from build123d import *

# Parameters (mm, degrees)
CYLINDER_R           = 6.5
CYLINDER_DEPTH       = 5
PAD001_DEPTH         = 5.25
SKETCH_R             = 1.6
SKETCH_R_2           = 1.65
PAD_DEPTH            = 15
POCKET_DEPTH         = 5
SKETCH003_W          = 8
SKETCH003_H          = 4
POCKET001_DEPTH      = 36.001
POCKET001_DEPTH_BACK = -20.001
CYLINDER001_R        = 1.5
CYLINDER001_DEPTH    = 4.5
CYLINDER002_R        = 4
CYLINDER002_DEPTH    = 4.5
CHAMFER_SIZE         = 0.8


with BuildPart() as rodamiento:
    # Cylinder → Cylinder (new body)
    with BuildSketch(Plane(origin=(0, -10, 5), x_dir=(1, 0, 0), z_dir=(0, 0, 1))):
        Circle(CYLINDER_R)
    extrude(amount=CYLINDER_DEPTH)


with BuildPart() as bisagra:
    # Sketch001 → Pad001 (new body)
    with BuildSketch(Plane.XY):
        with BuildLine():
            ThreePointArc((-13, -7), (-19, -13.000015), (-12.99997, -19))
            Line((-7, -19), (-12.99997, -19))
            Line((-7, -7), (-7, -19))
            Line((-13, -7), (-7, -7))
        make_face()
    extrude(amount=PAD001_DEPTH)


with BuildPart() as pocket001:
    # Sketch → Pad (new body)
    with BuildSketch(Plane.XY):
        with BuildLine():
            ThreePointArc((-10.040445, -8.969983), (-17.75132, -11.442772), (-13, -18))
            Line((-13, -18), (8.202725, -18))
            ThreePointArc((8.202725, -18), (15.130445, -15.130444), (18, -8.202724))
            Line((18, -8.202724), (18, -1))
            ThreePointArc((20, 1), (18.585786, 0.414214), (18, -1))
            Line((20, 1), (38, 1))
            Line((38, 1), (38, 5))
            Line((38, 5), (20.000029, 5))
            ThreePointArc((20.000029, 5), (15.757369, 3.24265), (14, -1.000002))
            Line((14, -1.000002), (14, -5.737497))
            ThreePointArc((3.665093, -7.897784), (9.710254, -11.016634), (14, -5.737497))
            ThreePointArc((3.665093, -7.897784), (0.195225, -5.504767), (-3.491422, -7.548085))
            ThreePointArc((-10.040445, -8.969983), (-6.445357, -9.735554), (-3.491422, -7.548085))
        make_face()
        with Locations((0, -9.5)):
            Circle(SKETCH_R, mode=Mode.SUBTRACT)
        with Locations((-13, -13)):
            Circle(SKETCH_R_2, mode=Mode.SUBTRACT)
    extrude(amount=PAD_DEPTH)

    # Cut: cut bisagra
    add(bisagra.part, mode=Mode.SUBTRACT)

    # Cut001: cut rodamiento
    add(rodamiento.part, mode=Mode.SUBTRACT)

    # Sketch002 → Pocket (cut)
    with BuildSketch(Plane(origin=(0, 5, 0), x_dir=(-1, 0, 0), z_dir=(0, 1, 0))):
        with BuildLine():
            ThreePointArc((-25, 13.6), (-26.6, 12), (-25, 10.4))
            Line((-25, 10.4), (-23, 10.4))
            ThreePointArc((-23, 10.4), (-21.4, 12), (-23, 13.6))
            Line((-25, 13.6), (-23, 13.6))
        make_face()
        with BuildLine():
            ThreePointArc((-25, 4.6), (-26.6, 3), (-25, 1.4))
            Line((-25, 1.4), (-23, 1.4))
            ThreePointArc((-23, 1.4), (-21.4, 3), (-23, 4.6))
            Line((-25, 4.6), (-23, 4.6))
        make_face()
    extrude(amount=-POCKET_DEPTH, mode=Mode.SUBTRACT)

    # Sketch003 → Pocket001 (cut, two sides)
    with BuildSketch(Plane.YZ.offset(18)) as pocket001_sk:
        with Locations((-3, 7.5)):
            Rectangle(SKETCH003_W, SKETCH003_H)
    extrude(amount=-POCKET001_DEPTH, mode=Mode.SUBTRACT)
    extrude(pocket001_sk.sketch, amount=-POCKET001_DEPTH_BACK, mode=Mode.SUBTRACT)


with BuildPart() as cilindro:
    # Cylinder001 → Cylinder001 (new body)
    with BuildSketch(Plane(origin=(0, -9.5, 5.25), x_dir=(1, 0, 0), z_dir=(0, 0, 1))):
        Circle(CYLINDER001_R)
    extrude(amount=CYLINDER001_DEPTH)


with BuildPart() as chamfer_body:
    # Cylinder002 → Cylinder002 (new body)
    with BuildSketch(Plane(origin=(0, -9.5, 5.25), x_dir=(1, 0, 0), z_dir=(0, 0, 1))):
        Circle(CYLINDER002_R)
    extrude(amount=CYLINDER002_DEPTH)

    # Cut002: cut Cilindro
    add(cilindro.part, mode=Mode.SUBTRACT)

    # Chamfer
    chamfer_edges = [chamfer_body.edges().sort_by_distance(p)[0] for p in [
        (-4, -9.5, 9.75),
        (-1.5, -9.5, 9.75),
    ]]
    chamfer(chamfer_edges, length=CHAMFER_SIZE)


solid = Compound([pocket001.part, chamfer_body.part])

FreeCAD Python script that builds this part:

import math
import FreeCAD as App
import Part
import Sketcher
Q = App.Units.Quantity


def edges_at(feature, points):
    """Names of the edges that pass closest to the given points."""
    edges = feature.Shape.Edges
    near = lambda p: min(range(len(edges)), key=lambda i: edges[i].distToShape(Part.Vertex(*p))[0])
    return sorted({f"Edge{near(p) + 1}" for p in points})

doc = App.newDocument("Part")
params = doc.addObject("Spreadsheet::Sheet", "Params")
for row, (alias, value) in enumerate([
    ("sketch1_diameter", "13 mm"),
    ("pad1_length", "5 mm"),
    ("sketch2_radius", "6 mm"),
    ("sketch2_width", "6 mm"),
    ("pad2_length", "5.25 mm"),
    ("sketch3_radius", "5 mm"),
    ("sketch3_radius2", "1.999999 mm"),
    ("sketch3_radius3", "6.000001 mm"),
    ("sketch3_radius4", "4 mm"),
    ("sketch3_diameter", "3.3 mm"),
    ("pad3_length", "15 mm"),
    ("sketch4_radius", "1.6 mm"),
    ("sketch4_width", "2 mm"),
    ("pocket1_length", "5 mm"),
    ("sketch5_width", "8 mm"),
    ("sketch5_height", "4 mm"),
    ("sketch6_diameter", "3 mm"),
    ("pad4_length", "4.5 mm"),
    ("sketch7_diameter", "8 mm"),
    ("pad5_length", "4.5 mm"),
    ("chamfer_size", "0.8 mm"),
], start=1):
    params.set(f"A{row}", alias)
    params.set(f"B{row}", "=" + value)
    params.setAlias(f"B{row}", alias)

body = doc.addObject("PartDesign::Body", "Body")

sketch1 = body.newObject("Sketcher::SketchObject", "Sketch")
sketch1.AttachmentSupport = (doc.getObject("XY_Plane"), [""])
sketch1.MapMode = "FlatFace"
sketch1.AttachmentOffset = App.Placement(App.Vector(0, 0, 5), App.Rotation())
sketch1.addGeometry(Part.Circle(App.Vector(0, -10, 0), App.Vector(0, 0, 1), 6), False)
sketch1.addConstraint(Sketcher.Constraint("PointOnObject", 0, 3, -2))
sketch1.addConstraint(Sketcher.Constraint("Diameter", 0, Q("13 mm")))
sketch1.addConstraint(Sketcher.Constraint("DistanceY", 0, 3, -1, 1, Q("10 mm")))
sketch1.setExpression("Constraints[1]", "Params.sketch1_diameter")
pad1 = body.newObject("PartDesign::Pad", "Pad")
pad1.Profile = sketch1
pad1.setExpression("Length", "Params.pad1_length")
body2 = doc.addObject("PartDesign::Body", "Body001")

sketch2 = body2.newObject("Sketcher::SketchObject", "Sketch001")
sketch2.AttachmentSupport = (doc.getObject("XY_Plane001"), [""])
sketch2.MapMode = "FlatFace"
sketch2.addGeometry(Part.ArcOfCircle(Part.Circle(App.Vector(-13, -13, 0), App.Vector(0, 0, 1), 6), math.radians(90), math.radians(270.000286)), False)
sketch2.addGeometry(Part.LineSegment(App.Vector(-12.99997, -19, 0), App.Vector(-7, -19, 0)), False)
sketch2.addGeometry(Part.LineSegment(App.Vector(-7, -19, 0), App.Vector(-7, -7, 0)), False)
sketch2.addGeometry(Part.LineSegment(App.Vector(-7, -7, 0), App.Vector(-13, -7, 0)), False)
sketch2.addConstraint(Sketcher.Constraint("Coincident", 0, 2, 1, 1))
sketch2.addConstraint(Sketcher.Constraint("Coincident", 1, 2, 2, 1))
sketch2.addConstraint(Sketcher.Constraint("Coincident", 2, 2, 3, 1))
sketch2.addConstraint(Sketcher.Constraint("Tangent", 3, 2, 0, 1))
sketch2.addConstraint(Sketcher.Constraint("Horizontal", 1))
sketch2.addConstraint(Sketcher.Constraint("Vertical", 2))
sketch2.addConstraint(Sketcher.Constraint("Horizontal", 3))
sketch2.addConstraint(Sketcher.Constraint("Radius", 0, Q("6 mm")))
sketch2.addConstraint(Sketcher.Constraint("DistanceX", 3, 2, 3, 1, Q("6 mm")))
sketch2.addConstraint(Sketcher.Constraint("DistanceX", 0, 3, -1, 1, Q("13 mm")))
sketch2.addConstraint(Sketcher.Constraint("DistanceY", 0, 3, -1, 1, Q("13 mm")))
sketch2.addConstraint(Sketcher.Constraint("DistanceX", 1, 1, 1, 2, Q("5.99997 mm")))
sketch2.setExpression("Constraints[7]", "Params.sketch2_radius")
sketch2.setExpression("Constraints[8]", "Params.sketch2_width")
pad2 = body2.newObject("PartDesign::Pad", "Pad001")
pad2.Profile = sketch2
pad2.setExpression("Length", "Params.pad2_length")
body3 = doc.addObject("PartDesign::Body", "Body002")

sketch3 = body3.newObject("Sketcher::SketchObject", "Sketch002")
sketch3.AttachmentSupport = (doc.getObject("XY_Plane002"), [""])
sketch3.MapMode = "FlatFace"
sketch3.addGeometry(Part.ArcOfCircle(Part.Circle(App.Vector(-13, -13, 0), App.Vector(0, 0, 1), 5), math.radians(54), math.radians(270)), False)
sketch3.addGeometry(Part.LineSegment(App.Vector(-13, -18, 0), App.Vector(8.2, -18, 0)), False)
sketch3.addGeometry(Part.ArcOfCircle(Part.Circle(App.Vector(8.2, -8.2, 0), App.Vector(0, 0, 1), 9.8), math.radians(-90), math.radians(0)), False)
sketch3.addGeometry(Part.LineSegment(App.Vector(18, -8.2, 0), App.Vector(18, -1, 0)), False)
sketch3.addGeometry(Part.ArcOfCircle(Part.Circle(App.Vector(20, -1, 0), App.Vector(0, 0, 1), 2), math.radians(90), math.radians(180)), False)
sketch3.addGeometry(Part.LineSegment(App.Vector(20, 1, 0), App.Vector(38, 1, 0)), False)
sketch3.addGeometry(Part.LineSegment(App.Vector(38, 1, 0), App.Vector(38, 5, 0)), False)
sketch3.addGeometry(Part.LineSegment(App.Vector(38, 5, 0), App.Vector(20, 5, 0)), False)
sketch3.addGeometry(Part.ArcOfCircle(Part.Circle(App.Vector(20, -1, 0), App.Vector(0, 0, 1), 6), math.radians(90), math.radians(180)), False)
sketch3.addGeometry(Part.LineSegment(App.Vector(14, -1, 0), App.Vector(14, -5.7, 0)), False)
sketch3.addGeometry(Part.ArcOfCircle(Part.Circle(App.Vector(8.6, -5.7, 0), App.Vector(0, 0, 1), 5.4), math.radians(-156), math.radians(0)), False)
sketch3.addGeometry(Part.ArcOfCircle(Part.Circle(App.Vector(0, -9.5, 0), App.Vector(0, 0, 1), 4), math.radians(24), math.radians(151)), False)
sketch3.addGeometry(Part.ArcOfCircle(Part.Circle(App.Vector(-7.4, -5.4, 0), App.Vector(0, 0, 1), 4.5), math.radians(-126), math.radians(-29)), False)
sketch3.addGeometry(Part.Circle(App.Vector(-13, -13, 0), App.Vector(0, 0, 1), 1.6), False)
sketch3.addGeometry(Part.Circle(App.Vector(0, -9.5, 0), App.Vector(0, 0, 1), 1.6), False)
sketch3.addConstraint(Sketcher.Constraint("Tangent", 0, 2, 1, 1))
sketch3.addConstraint(Sketcher.Constraint("Tangent", 1, 2, 2, 1))
sketch3.addConstraint(Sketcher.Constraint("Tangent", 2, 2, 3, 1))
sketch3.addConstraint(Sketcher.Constraint("Tangent", 3, 2, 4, 2))
sketch3.addConstraint(Sketcher.Constraint("Tangent", 4, 1, 5, 1))
sketch3.addConstraint(Sketcher.Constraint("Coincident", 5, 2, 6, 1))
sketch3.addConstraint(Sketcher.Constraint("Coincident", 6, 2, 7, 1))
sketch3.addConstraint(Sketcher.Constraint("Coincident", 7, 2, 8, 1))
sketch3.addConstraint(Sketcher.Constraint("Tangent", 8, 2, 9, 1))
sketch3.addConstraint(Sketcher.Constraint("Tangent", 9, 2, 10, 2))
sketch3.addConstraint(Sketcher.Constraint("Tangent", 10, 1, 11, 1))
sketch3.addConstraint(Sketcher.Constraint("Tangent", 11, 2, 12, 2))
sketch3.addConstraint(Sketcher.Constraint("Tangent", 12, 1, 0, 1))
sketch3.addConstraint(Sketcher.Constraint("Horizontal", 1))
sketch3.addConstraint(Sketcher.Constraint("Vertical", 3))
sketch3.addConstraint(Sketcher.Constraint("Horizontal", 5))
sketch3.addConstraint(Sketcher.Constraint("Vertical", 6))
sketch3.addConstraint(Sketcher.Constraint("Horizontal", 7))
sketch3.addConstraint(Sketcher.Constraint("Vertical", 9))
sketch3.addConstraint(Sketcher.Constraint("Coincident", 8, 3, 4, 3))
sketch3.addConstraint(Sketcher.Constraint("Coincident", 13, 3, 0, 3))
sketch3.addConstraint(Sketcher.Constraint("Coincident", 14, 3, 11, 3))
sketch3.addConstraint(Sketcher.Constraint("PointOnObject", 11, 3, -2))
sketch3.addConstraint(Sketcher.Constraint("Radius", 0, Q("5 mm")))
sketch3.addConstraint(Sketcher.Constraint("Radius", 4, Q("1.999999 mm")))
sketch3.addConstraint(Sketcher.Constraint("Radius", 8, Q("6.000001 mm")))
sketch3.addConstraint(Sketcher.Constraint("Radius", 11, Q("4 mm")))
sketch3.addConstraint(Sketcher.Constraint("Diameter", 13, Q("3.3 mm")))
sketch3.addConstraint(Sketcher.Constraint("Diameter", 14, Q("3.2 mm")))
sketch3.addConstraint(Sketcher.Constraint("DistanceX", 5, 1, 5, 2, Q("18 mm")))
sketch3.addConstraint(Sketcher.Constraint("DistanceX", 0, 3, -1, 1, Q("13 mm")))
sketch3.addConstraint(Sketcher.Constraint("DistanceY", 0, 3, -1, 1, Q("13 mm")))
sketch3.addConstraint(Sketcher.Constraint("DistanceX", -1, 1, 4, 3, Q("19.999999 mm")))
sketch3.addConstraint(Sketcher.Constraint("DistanceY", 4, 3, -1, 1, Q("0.999999 mm")))
sketch3.addConstraint(Sketcher.Constraint("DistanceY", 11, 3, -1, 1, Q("9.5 mm")))
sketch3.addConstraint(Sketcher.Constraint("Radius", 2, Q("9.797275 mm")))
sketch3.addConstraint(Sketcher.Constraint("Radius", 10, Q("5.393234 mm")))
sketch3.addConstraint(Sketcher.Constraint("Radius", 12, Q("4.471034 mm")))
sketch3.addConstraint(Sketcher.Constraint("DistanceX", 7, 2, 7, 1, Q("17.999971 mm")))
sketch3.setExpression("Constraints[23]", "Params.sketch3_radius")
sketch3.setExpression("Constraints[24]", "Params.sketch3_radius2")
sketch3.setExpression("Constraints[25]", "Params.sketch3_radius3")
sketch3.setExpression("Constraints[26]", "Params.sketch3_radius4")
sketch3.setExpression("Constraints[27]", "Params.sketch3_diameter")
pad3 = body3.newObject("PartDesign::Pad", "Pad002")
pad3.Profile = sketch3
pad3.setExpression("Length", "Params.pad3_length")
doc.recompute()

boolean = body3.newObject("PartDesign::Boolean", "Boolean")
boolean.Type = "Cut"
boolean.addObjects([body2])
doc.recompute()

boolean2 = body3.newObject("PartDesign::Boolean", "Boolean001")
boolean2.Type = "Cut"
boolean2.addObjects([body])

sketch4 = body3.newObject("Sketcher::SketchObject", "Sketch003")
sketch4.AttachmentSupport = (doc.getObject("XZ_Plane002"), [""])
sketch4.MapMode = "FlatFace"
sketch4.AttachmentOffset = App.Placement(App.Vector(0, 0, -5), App.Rotation())
sketch4.addGeometry(Part.ArcOfCircle(Part.Circle(App.Vector(25, 12, 0), App.Vector(0, 0, 1), 1.6), math.radians(-90), math.radians(90)), False)
sketch4.addGeometry(Part.LineSegment(App.Vector(25, 10.4, 0), App.Vector(23, 10.4, 0)), False)
sketch4.addGeometry(Part.ArcOfCircle(Part.Circle(App.Vector(23, 12, 0), App.Vector(0, 0, 1), 1.6), math.radians(90), math.radians(270)), False)
sketch4.addGeometry(Part.LineSegment(App.Vector(23, 13.6, 0), App.Vector(25, 13.6, 0)), False)
sketch4.addGeometry(Part.ArcOfCircle(Part.Circle(App.Vector(25, 3, 0), App.Vector(0, 0, 1), 1.6), math.radians(-90), math.radians(90)), False)
sketch4.addGeometry(Part.LineSegment(App.Vector(25, 1.4, 0), App.Vector(23, 1.4, 0)), False)
sketch4.addGeometry(Part.ArcOfCircle(Part.Circle(App.Vector(23, 3, 0), App.Vector(0, 0, 1), 1.6), math.radians(90), math.radians(270)), False)
sketch4.addGeometry(Part.LineSegment(App.Vector(23, 4.6, 0), App.Vector(25, 4.6, 0)), False)
sketch4.addConstraint(Sketcher.Constraint("Tangent", 0, 1, 1, 1))
sketch4.addConstraint(Sketcher.Constraint("Tangent", 1, 2, 2, 2))
sketch4.addConstraint(Sketcher.Constraint("Tangent", 2, 1, 3, 1))
sketch4.addConstraint(Sketcher.Constraint("Tangent", 3, 2, 0, 2))
sketch4.addConstraint(Sketcher.Constraint("Tangent", 4, 1, 5, 1))
sketch4.addConstraint(Sketcher.Constraint("Tangent", 5, 2, 6, 2))
sketch4.addConstraint(Sketcher.Constraint("Tangent", 6, 1, 7, 1))
sketch4.addConstraint(Sketcher.Constraint("Tangent", 7, 2, 4, 2))
sketch4.addConstraint(Sketcher.Constraint("Horizontal", 1))
sketch4.addConstraint(Sketcher.Constraint("Horizontal", 3))
sketch4.addConstraint(Sketcher.Constraint("Horizontal", 5))
sketch4.addConstraint(Sketcher.Constraint("Horizontal", 7))
sketch4.addConstraint(Sketcher.Constraint("Equal", 2, 4))
sketch4.addConstraint(Sketcher.Constraint("Vertical", 0, 3, 4, 3))
sketch4.addConstraint(Sketcher.Constraint("Vertical", 2, 3, 6, 3))
sketch4.addConstraint(Sketcher.Constraint("Radius", 0, Q("1.6 mm")))
sketch4.addConstraint(Sketcher.Constraint("DistanceX", 1, 2, 1, 1, Q("2 mm")))
sketch4.addConstraint(Sketcher.Constraint("DistanceX", -1, 1, 0, 3, Q("25 mm")))
sketch4.addConstraint(Sketcher.Constraint("DistanceY", -1, 1, 0, 3, Q("12 mm")))
sketch4.addConstraint(Sketcher.Constraint("DistanceY", -1, 1, 4, 3, Q("3 mm")))
sketch4.setExpression("Constraints[15]", "Params.sketch4_radius")
sketch4.setExpression("Constraints[16]", "Params.sketch4_width")
pocket1 = body3.newObject("PartDesign::Pocket", "Pocket")
pocket1.Profile = sketch4
pocket1.setExpression("Length", "Params.pocket1_length")
pocket1.Reversed = True

sketch5 = body3.newObject("Sketcher::SketchObject", "Sketch004")
sketch5.AttachmentSupport = (doc.getObject("YZ_Plane002"), [""])
sketch5.MapMode = "FlatFace"
sketch5.AttachmentOffset = App.Placement(App.Vector(0, 0, 18), App.Rotation())
sketch5.addGeometry(Part.LineSegment(App.Vector(-7, 9.5, 0), App.Vector(-7, 5.5, 0)), False)
sketch5.addGeometry(Part.LineSegment(App.Vector(-7, 5.5, 0), App.Vector(1, 5.5, 0)), False)
sketch5.addGeometry(Part.LineSegment(App.Vector(1, 5.5, 0), App.Vector(1, 9.5, 0)), False)
sketch5.addGeometry(Part.LineSegment(App.Vector(1, 9.5, 0), App.Vector(-7, 9.5, 0)), False)
sketch5.addConstraint(Sketcher.Constraint("Coincident", 0, 2, 1, 1))
sketch5.addConstraint(Sketcher.Constraint("Coincident", 1, 2, 2, 1))
sketch5.addConstraint(Sketcher.Constraint("Coincident", 2, 2, 3, 1))
sketch5.addConstraint(Sketcher.Constraint("Coincident", 3, 2, 0, 1))
sketch5.addConstraint(Sketcher.Constraint("Vertical", 0))
sketch5.addConstraint(Sketcher.Constraint("Horizontal", 1))
sketch5.addConstraint(Sketcher.Constraint("Vertical", 2))
sketch5.addConstraint(Sketcher.Constraint("Horizontal", 3))
sketch5.addConstraint(Sketcher.Constraint("DistanceX", 1, 1, 1, 2, Q("8 mm")))
sketch5.addConstraint(Sketcher.Constraint("DistanceY", 0, 2, 0, 1, Q("4 mm")))
sketch5.addConstraint(Sketcher.Constraint("DistanceX", 0, 2, -1, 1, Q("7 mm")))
sketch5.addConstraint(Sketcher.Constraint("DistanceY", -1, 1, 0, 2, Q("5.5 mm")))
sketch5.setExpression("Constraints[8]", "Params.sketch5_width")
sketch5.setExpression("Constraints[9]", "Params.sketch5_height")
pocket2 = body3.newObject("PartDesign::Pocket", "Pocket001")
pocket2.Profile = sketch5
pocket2.Type = "ThroughAll"
pocket2.Midplane = True
body4 = doc.addObject("PartDesign::Body", "Body003")

sketch6 = body4.newObject("Sketcher::SketchObject", "Sketch005")
sketch6.AttachmentSupport = (doc.getObject("XY_Plane003"), [""])
sketch6.MapMode = "FlatFace"
sketch6.AttachmentOffset = App.Placement(App.Vector(0, 0, 5.25), App.Rotation())
sketch6.addGeometry(Part.Circle(App.Vector(0, -9.5, 0), App.Vector(0, 0, 1), 1.5), False)
sketch6.addConstraint(Sketcher.Constraint("PointOnObject", 0, 3, -2))
sketch6.addConstraint(Sketcher.Constraint("Diameter", 0, Q("3 mm")))
sketch6.addConstraint(Sketcher.Constraint("DistanceY", 0, 3, -1, 1, Q("9.5 mm")))
sketch6.setExpression("Constraints[1]", "Params.sketch6_diameter")
pad4 = body4.newObject("PartDesign::Pad", "Pad003")
pad4.Profile = sketch6
pad4.setExpression("Length", "Params.pad4_length")
body5 = doc.addObject("PartDesign::Body", "Body004")

sketch7 = body5.newObject("Sketcher::SketchObject", "Sketch006")
sketch7.AttachmentSupport = (doc.getObject("XY_Plane004"), [""])
sketch7.MapMode = "FlatFace"
sketch7.AttachmentOffset = App.Placement(App.Vector(0, 0, 5.25), App.Rotation())
sketch7.addGeometry(Part.Circle(App.Vector(0, -9.5, 0), App.Vector(0, 0, 1), 4), False)
sketch7.addConstraint(Sketcher.Constraint("PointOnObject", 0, 3, -2))
sketch7.addConstraint(Sketcher.Constraint("Diameter", 0, Q("8 mm")))
sketch7.addConstraint(Sketcher.Constraint("DistanceY", 0, 3, -1, 1, Q("9.5 mm")))
sketch7.setExpression("Constraints[1]", "Params.sketch7_diameter")
pad5 = body5.newObject("PartDesign::Pad", "Pad004")
pad5.Profile = sketch7
pad5.setExpression("Length", "Params.pad5_length")
doc.recompute()

boolean3 = body5.newObject("PartDesign::Boolean", "Boolean002")
boolean3.Type = "Cut"
boolean3.addObjects([body4])
doc.recompute()

chamfer = body5.newObject("PartDesign::Chamfer", "Chamfer")
chamfer.Base = (boolean3, edges_at(boolean3, [(-4, -9.5, 9.75), (-1.5, -9.5, 9.75)]))
chamfer.setExpression("Size", "Params.chamfer_size")

doc.recompute()
